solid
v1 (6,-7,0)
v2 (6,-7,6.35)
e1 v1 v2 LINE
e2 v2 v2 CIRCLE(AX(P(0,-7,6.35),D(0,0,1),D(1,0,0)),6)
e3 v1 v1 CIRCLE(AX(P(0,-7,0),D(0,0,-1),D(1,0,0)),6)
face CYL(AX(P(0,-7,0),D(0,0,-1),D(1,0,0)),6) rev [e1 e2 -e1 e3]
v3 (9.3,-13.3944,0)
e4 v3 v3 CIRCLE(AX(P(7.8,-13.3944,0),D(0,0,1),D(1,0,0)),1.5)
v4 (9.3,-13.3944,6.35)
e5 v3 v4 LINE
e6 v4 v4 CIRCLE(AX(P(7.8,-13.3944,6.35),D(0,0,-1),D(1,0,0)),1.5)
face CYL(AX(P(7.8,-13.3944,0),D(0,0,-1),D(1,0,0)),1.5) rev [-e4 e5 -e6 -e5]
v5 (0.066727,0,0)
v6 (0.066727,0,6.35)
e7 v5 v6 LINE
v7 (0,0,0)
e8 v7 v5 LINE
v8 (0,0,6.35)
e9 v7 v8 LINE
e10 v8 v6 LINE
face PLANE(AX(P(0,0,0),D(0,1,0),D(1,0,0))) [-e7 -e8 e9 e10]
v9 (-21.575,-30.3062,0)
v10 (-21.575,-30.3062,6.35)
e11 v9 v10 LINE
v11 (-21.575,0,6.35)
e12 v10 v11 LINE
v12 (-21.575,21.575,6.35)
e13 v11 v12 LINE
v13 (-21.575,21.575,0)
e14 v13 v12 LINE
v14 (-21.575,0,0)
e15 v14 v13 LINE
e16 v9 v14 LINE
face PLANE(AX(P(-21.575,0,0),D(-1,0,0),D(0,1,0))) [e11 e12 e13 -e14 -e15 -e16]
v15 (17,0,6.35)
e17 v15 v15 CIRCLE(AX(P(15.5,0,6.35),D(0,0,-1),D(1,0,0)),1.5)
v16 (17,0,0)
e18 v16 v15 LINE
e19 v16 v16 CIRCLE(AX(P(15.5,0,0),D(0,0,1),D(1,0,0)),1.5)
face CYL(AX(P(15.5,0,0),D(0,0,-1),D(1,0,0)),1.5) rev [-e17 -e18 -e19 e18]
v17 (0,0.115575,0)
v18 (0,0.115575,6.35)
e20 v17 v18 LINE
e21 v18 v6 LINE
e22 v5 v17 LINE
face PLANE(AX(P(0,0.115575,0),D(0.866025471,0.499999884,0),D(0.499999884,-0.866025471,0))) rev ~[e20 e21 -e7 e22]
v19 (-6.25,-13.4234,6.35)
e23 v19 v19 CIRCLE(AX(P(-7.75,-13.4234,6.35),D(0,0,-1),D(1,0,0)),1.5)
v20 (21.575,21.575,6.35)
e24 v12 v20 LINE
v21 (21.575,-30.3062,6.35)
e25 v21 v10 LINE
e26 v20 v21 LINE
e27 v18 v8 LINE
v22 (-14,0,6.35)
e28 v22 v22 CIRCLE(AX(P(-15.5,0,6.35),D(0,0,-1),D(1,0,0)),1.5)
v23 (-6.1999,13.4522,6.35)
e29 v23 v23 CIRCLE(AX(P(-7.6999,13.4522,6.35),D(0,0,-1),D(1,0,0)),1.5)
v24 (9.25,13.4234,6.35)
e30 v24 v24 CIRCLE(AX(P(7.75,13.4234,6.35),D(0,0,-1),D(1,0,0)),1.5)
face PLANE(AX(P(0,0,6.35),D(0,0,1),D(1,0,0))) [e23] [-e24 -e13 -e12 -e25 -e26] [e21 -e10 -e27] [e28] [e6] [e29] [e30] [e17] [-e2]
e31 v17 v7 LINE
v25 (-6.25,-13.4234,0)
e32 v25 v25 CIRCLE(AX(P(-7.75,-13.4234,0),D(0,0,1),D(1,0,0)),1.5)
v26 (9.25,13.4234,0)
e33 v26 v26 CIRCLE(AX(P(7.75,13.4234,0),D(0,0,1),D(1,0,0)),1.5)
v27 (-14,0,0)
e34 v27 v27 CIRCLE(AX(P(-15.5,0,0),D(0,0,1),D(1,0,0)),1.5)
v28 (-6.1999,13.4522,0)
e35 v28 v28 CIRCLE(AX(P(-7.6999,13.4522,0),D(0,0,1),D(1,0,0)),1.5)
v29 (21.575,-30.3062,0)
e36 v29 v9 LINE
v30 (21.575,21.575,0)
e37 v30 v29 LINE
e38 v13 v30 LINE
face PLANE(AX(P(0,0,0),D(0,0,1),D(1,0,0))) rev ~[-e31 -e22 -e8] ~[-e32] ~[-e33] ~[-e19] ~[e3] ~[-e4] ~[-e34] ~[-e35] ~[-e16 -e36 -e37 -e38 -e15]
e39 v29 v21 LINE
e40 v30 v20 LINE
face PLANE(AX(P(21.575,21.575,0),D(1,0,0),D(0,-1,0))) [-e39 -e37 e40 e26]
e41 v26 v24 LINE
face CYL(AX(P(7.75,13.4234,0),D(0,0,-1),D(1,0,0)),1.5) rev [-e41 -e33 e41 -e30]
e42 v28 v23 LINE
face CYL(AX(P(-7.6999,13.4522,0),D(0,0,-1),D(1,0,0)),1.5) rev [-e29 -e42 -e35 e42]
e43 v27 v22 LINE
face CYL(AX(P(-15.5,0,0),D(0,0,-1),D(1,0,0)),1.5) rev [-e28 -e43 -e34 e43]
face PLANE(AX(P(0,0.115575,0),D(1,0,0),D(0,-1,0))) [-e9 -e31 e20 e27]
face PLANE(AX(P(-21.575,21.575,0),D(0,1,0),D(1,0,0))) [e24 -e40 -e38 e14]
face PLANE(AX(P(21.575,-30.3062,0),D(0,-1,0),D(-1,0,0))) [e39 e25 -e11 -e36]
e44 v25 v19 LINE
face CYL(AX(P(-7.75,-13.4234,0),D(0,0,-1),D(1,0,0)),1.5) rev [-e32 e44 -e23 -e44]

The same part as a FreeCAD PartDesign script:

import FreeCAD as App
import Part
import Sketcher
Q = App.Units.Quantity

doc = App.newDocument("Part")
params = doc.addObject("Spreadsheet::Sheet", "Params")
for row, (alias, value) in enumerate([
    ("sketch1_diameter", "12 mm"),
    ("sketch1_diameter2", "3 mm"),
    ("sketch1_width", "43.15 mm"),
    ("pad1_length", "6.35 mm"),
], start=1):
    params.set(f"A{row}", alias)
    params.set(f"B{row}", "=" + value)
    params.setAlias(f"B{row}", alias)

body = doc.addObject("PartDesign::Body", "Body")

# Sketch on XY plane
sketch1 = body.newObject("Sketcher::SketchObject", "Sketch")
sketch1.AttachmentSupport = (doc.getObject("XY_Plane"), [""])
sketch1.MapMode = "FlatFace"
sketch1.addGeometry([
    Part.LineSegment(App.Vector(-21.57, 21.57, 0), App.Vector(-21.57, 0, 0)),  # 0
    Part.LineSegment(App.Vector(-21.57, 0, 0), App.Vector(-21.57, -30.31, 0)),  # 1
    Part.LineSegment(App.Vector(-21.57, -30.31, 0), App.Vector(21.57, -30.31, 0)),  # 2
    Part.LineSegment(App.Vector(21.57, -30.31, 0), App.Vector(21.57, 21.57, 0)),  # 3
    Part.LineSegment(App.Vector(21.57, 21.57, 0), App.Vector(-21.57, 21.57, 0)),  # 4
    Part.Circle(App.Vector(0, -7, 0), App.Vector(0, 0, 1), 6),  # 5
    Part.Circle(App.Vector(-7.75, -13.42, 0), App.Vector(0, 0, 1), 1.5),  # 6
    Part.Circle(App.Vector(-15.5, 0, 0), App.Vector(0, 0, 1), 1.5),  # 7
    Part.Circle(App.Vector(-7.7, 13.45, 0), App.Vector(0, 0, 1), 1.5),  # 8
    Part.LineSegment(App.Vector(0, 0, 0), App.Vector(0, 0.12, 0)),  # 9
    Part.LineSegment(App.Vector(0, 0.12, 0), App.Vector(0.07, 0, 0)),  # 10
    Part.LineSegment(App.Vector(0.07, 0, 0), App.Vector(0, 0, 0)),  # 11
    Part.Circle(App.Vector(7.8, -13.39, 0), App.Vector(0, 0, 1), 1.5),  # 12
    Part.Circle(App.Vector(7.75, 13.42, 0), App.Vector(0, 0, 1), 1.5),  # 13
    Part.Circle(App.Vector(15.5, 0, 0), App.Vector(0, 0, 1), 1.5),  # 14
], False)
sketch1.addConstraint([
    Sketcher.Constraint("Coincident", 0, 2, 1, 1),
    Sketcher.Constraint("Coincident", 1, 2, 2, 1),
    Sketcher.Constraint("Coincident", 2, 2, 3, 1),
    Sketcher.Constraint("Coincident", 3, 2, 4, 1),
    Sketcher.Constraint("Coincident", 4, 2, 0, 1),
    Sketcher.Constraint("Coincident", 9, 2, 10, 1),
    Sketcher.Constraint("Coincident", 10, 2, 11, 1),
    Sketcher.Constraint("Coincident", 11, 2, 9, 1),
    Sketcher.Constraint("Vertical", 0),
    Sketcher.Constraint("Vertical", 1),
    Sketcher.Constraint("Horizontal", 2),
    Sketcher.Constraint("Vertical", 3),
    Sketcher.Constraint("Horizontal", 4),
    Sketcher.Constraint("Vertical", 9),
    Sketcher.Constraint("Horizontal", 11),
    Sketcher.Constraint("Coincident", 11, 2, -1, 1),
    Sketcher.Constraint("Equal", 6, 7),
    Sketcher.Constraint("Equal", 7, 8),
    Sketcher.Constraint("Equal", 8, 12),
    Sketcher.Constraint("Equal", 12, 13),
    Sketcher.Constraint("Equal", 13, 14),
    Sketcher.Constraint("Symmetric", 6, 3, 13, 3, -1, 1),
    Sketcher.Constraint("Symmetric", 7, 3, 14, 3, -1, 1),
    Sketcher.Constraint("PointOnObject", 5, 3, -2),
    Sketcher.Constraint("PointOnObject", 7, 3, -1),
    Sketcher.Constraint("PointOnObject", 0, 2, -1),
    Sketcher.Constraint("Diameter", 5, 12.0),
    Sketcher.Constraint("Diameter", 6, 3.0),
    Sketcher.Constraint("Angle", 10, Q("-60 deg")),
    Sketcher.Constraint("DistanceY", 5, 3, -1, 1, 7.0),
    Sketcher.Constraint("DistanceX", 2, 1, 2, 2, 43.15),
    Sketcher.Constraint("DistanceY", 0, 2, 0, 1, 21.575),
    Sketcher.Constraint("DistanceY", 1, 2, 1, 1, 30.3062),
    Sketcher.Constraint("DistanceX", 0, 2, -1, 1, 21.575),
    Sketcher.Constraint("DistanceX", 7, 3, -1, 1, 15.5),
    Sketcher.Constraint("DistanceX", 8, 3, -1, 1, 7.7),
    Sketcher.Constraint("DistanceX", -1, 1, 12, 3, 7.8),
    Sketcher.Constraint("DistanceX", 6, 3, 13, 3, 15.5),
    Sketcher.Constraint("DistanceX", 11, 2, 11, 1, 0.0667),
    Sketcher.Constraint("DistanceY", 6, 3, 12, 3, 0.029),
    Sketcher.Constraint("DistanceY", 6, 3, -1, 1, 13.4234),
    Sketcher.Constraint("DistanceY", -1, 1, 8, 3, 13.4522),
])
sketch1.setExpression("Constraints[26]", "Params.sketch1_diameter")
sketch1.setExpression("Constraints[27]", "Params.sketch1_diameter2")
sketch1.setExpression("Constraints[30]", "Params.sketch1_width")
pad1 = body.newObject("PartDesign::Pad", "Pad")
pad1.Profile = sketch1
pad1.setExpression("Length", "Params.pad1_length")

doc.recompute()
